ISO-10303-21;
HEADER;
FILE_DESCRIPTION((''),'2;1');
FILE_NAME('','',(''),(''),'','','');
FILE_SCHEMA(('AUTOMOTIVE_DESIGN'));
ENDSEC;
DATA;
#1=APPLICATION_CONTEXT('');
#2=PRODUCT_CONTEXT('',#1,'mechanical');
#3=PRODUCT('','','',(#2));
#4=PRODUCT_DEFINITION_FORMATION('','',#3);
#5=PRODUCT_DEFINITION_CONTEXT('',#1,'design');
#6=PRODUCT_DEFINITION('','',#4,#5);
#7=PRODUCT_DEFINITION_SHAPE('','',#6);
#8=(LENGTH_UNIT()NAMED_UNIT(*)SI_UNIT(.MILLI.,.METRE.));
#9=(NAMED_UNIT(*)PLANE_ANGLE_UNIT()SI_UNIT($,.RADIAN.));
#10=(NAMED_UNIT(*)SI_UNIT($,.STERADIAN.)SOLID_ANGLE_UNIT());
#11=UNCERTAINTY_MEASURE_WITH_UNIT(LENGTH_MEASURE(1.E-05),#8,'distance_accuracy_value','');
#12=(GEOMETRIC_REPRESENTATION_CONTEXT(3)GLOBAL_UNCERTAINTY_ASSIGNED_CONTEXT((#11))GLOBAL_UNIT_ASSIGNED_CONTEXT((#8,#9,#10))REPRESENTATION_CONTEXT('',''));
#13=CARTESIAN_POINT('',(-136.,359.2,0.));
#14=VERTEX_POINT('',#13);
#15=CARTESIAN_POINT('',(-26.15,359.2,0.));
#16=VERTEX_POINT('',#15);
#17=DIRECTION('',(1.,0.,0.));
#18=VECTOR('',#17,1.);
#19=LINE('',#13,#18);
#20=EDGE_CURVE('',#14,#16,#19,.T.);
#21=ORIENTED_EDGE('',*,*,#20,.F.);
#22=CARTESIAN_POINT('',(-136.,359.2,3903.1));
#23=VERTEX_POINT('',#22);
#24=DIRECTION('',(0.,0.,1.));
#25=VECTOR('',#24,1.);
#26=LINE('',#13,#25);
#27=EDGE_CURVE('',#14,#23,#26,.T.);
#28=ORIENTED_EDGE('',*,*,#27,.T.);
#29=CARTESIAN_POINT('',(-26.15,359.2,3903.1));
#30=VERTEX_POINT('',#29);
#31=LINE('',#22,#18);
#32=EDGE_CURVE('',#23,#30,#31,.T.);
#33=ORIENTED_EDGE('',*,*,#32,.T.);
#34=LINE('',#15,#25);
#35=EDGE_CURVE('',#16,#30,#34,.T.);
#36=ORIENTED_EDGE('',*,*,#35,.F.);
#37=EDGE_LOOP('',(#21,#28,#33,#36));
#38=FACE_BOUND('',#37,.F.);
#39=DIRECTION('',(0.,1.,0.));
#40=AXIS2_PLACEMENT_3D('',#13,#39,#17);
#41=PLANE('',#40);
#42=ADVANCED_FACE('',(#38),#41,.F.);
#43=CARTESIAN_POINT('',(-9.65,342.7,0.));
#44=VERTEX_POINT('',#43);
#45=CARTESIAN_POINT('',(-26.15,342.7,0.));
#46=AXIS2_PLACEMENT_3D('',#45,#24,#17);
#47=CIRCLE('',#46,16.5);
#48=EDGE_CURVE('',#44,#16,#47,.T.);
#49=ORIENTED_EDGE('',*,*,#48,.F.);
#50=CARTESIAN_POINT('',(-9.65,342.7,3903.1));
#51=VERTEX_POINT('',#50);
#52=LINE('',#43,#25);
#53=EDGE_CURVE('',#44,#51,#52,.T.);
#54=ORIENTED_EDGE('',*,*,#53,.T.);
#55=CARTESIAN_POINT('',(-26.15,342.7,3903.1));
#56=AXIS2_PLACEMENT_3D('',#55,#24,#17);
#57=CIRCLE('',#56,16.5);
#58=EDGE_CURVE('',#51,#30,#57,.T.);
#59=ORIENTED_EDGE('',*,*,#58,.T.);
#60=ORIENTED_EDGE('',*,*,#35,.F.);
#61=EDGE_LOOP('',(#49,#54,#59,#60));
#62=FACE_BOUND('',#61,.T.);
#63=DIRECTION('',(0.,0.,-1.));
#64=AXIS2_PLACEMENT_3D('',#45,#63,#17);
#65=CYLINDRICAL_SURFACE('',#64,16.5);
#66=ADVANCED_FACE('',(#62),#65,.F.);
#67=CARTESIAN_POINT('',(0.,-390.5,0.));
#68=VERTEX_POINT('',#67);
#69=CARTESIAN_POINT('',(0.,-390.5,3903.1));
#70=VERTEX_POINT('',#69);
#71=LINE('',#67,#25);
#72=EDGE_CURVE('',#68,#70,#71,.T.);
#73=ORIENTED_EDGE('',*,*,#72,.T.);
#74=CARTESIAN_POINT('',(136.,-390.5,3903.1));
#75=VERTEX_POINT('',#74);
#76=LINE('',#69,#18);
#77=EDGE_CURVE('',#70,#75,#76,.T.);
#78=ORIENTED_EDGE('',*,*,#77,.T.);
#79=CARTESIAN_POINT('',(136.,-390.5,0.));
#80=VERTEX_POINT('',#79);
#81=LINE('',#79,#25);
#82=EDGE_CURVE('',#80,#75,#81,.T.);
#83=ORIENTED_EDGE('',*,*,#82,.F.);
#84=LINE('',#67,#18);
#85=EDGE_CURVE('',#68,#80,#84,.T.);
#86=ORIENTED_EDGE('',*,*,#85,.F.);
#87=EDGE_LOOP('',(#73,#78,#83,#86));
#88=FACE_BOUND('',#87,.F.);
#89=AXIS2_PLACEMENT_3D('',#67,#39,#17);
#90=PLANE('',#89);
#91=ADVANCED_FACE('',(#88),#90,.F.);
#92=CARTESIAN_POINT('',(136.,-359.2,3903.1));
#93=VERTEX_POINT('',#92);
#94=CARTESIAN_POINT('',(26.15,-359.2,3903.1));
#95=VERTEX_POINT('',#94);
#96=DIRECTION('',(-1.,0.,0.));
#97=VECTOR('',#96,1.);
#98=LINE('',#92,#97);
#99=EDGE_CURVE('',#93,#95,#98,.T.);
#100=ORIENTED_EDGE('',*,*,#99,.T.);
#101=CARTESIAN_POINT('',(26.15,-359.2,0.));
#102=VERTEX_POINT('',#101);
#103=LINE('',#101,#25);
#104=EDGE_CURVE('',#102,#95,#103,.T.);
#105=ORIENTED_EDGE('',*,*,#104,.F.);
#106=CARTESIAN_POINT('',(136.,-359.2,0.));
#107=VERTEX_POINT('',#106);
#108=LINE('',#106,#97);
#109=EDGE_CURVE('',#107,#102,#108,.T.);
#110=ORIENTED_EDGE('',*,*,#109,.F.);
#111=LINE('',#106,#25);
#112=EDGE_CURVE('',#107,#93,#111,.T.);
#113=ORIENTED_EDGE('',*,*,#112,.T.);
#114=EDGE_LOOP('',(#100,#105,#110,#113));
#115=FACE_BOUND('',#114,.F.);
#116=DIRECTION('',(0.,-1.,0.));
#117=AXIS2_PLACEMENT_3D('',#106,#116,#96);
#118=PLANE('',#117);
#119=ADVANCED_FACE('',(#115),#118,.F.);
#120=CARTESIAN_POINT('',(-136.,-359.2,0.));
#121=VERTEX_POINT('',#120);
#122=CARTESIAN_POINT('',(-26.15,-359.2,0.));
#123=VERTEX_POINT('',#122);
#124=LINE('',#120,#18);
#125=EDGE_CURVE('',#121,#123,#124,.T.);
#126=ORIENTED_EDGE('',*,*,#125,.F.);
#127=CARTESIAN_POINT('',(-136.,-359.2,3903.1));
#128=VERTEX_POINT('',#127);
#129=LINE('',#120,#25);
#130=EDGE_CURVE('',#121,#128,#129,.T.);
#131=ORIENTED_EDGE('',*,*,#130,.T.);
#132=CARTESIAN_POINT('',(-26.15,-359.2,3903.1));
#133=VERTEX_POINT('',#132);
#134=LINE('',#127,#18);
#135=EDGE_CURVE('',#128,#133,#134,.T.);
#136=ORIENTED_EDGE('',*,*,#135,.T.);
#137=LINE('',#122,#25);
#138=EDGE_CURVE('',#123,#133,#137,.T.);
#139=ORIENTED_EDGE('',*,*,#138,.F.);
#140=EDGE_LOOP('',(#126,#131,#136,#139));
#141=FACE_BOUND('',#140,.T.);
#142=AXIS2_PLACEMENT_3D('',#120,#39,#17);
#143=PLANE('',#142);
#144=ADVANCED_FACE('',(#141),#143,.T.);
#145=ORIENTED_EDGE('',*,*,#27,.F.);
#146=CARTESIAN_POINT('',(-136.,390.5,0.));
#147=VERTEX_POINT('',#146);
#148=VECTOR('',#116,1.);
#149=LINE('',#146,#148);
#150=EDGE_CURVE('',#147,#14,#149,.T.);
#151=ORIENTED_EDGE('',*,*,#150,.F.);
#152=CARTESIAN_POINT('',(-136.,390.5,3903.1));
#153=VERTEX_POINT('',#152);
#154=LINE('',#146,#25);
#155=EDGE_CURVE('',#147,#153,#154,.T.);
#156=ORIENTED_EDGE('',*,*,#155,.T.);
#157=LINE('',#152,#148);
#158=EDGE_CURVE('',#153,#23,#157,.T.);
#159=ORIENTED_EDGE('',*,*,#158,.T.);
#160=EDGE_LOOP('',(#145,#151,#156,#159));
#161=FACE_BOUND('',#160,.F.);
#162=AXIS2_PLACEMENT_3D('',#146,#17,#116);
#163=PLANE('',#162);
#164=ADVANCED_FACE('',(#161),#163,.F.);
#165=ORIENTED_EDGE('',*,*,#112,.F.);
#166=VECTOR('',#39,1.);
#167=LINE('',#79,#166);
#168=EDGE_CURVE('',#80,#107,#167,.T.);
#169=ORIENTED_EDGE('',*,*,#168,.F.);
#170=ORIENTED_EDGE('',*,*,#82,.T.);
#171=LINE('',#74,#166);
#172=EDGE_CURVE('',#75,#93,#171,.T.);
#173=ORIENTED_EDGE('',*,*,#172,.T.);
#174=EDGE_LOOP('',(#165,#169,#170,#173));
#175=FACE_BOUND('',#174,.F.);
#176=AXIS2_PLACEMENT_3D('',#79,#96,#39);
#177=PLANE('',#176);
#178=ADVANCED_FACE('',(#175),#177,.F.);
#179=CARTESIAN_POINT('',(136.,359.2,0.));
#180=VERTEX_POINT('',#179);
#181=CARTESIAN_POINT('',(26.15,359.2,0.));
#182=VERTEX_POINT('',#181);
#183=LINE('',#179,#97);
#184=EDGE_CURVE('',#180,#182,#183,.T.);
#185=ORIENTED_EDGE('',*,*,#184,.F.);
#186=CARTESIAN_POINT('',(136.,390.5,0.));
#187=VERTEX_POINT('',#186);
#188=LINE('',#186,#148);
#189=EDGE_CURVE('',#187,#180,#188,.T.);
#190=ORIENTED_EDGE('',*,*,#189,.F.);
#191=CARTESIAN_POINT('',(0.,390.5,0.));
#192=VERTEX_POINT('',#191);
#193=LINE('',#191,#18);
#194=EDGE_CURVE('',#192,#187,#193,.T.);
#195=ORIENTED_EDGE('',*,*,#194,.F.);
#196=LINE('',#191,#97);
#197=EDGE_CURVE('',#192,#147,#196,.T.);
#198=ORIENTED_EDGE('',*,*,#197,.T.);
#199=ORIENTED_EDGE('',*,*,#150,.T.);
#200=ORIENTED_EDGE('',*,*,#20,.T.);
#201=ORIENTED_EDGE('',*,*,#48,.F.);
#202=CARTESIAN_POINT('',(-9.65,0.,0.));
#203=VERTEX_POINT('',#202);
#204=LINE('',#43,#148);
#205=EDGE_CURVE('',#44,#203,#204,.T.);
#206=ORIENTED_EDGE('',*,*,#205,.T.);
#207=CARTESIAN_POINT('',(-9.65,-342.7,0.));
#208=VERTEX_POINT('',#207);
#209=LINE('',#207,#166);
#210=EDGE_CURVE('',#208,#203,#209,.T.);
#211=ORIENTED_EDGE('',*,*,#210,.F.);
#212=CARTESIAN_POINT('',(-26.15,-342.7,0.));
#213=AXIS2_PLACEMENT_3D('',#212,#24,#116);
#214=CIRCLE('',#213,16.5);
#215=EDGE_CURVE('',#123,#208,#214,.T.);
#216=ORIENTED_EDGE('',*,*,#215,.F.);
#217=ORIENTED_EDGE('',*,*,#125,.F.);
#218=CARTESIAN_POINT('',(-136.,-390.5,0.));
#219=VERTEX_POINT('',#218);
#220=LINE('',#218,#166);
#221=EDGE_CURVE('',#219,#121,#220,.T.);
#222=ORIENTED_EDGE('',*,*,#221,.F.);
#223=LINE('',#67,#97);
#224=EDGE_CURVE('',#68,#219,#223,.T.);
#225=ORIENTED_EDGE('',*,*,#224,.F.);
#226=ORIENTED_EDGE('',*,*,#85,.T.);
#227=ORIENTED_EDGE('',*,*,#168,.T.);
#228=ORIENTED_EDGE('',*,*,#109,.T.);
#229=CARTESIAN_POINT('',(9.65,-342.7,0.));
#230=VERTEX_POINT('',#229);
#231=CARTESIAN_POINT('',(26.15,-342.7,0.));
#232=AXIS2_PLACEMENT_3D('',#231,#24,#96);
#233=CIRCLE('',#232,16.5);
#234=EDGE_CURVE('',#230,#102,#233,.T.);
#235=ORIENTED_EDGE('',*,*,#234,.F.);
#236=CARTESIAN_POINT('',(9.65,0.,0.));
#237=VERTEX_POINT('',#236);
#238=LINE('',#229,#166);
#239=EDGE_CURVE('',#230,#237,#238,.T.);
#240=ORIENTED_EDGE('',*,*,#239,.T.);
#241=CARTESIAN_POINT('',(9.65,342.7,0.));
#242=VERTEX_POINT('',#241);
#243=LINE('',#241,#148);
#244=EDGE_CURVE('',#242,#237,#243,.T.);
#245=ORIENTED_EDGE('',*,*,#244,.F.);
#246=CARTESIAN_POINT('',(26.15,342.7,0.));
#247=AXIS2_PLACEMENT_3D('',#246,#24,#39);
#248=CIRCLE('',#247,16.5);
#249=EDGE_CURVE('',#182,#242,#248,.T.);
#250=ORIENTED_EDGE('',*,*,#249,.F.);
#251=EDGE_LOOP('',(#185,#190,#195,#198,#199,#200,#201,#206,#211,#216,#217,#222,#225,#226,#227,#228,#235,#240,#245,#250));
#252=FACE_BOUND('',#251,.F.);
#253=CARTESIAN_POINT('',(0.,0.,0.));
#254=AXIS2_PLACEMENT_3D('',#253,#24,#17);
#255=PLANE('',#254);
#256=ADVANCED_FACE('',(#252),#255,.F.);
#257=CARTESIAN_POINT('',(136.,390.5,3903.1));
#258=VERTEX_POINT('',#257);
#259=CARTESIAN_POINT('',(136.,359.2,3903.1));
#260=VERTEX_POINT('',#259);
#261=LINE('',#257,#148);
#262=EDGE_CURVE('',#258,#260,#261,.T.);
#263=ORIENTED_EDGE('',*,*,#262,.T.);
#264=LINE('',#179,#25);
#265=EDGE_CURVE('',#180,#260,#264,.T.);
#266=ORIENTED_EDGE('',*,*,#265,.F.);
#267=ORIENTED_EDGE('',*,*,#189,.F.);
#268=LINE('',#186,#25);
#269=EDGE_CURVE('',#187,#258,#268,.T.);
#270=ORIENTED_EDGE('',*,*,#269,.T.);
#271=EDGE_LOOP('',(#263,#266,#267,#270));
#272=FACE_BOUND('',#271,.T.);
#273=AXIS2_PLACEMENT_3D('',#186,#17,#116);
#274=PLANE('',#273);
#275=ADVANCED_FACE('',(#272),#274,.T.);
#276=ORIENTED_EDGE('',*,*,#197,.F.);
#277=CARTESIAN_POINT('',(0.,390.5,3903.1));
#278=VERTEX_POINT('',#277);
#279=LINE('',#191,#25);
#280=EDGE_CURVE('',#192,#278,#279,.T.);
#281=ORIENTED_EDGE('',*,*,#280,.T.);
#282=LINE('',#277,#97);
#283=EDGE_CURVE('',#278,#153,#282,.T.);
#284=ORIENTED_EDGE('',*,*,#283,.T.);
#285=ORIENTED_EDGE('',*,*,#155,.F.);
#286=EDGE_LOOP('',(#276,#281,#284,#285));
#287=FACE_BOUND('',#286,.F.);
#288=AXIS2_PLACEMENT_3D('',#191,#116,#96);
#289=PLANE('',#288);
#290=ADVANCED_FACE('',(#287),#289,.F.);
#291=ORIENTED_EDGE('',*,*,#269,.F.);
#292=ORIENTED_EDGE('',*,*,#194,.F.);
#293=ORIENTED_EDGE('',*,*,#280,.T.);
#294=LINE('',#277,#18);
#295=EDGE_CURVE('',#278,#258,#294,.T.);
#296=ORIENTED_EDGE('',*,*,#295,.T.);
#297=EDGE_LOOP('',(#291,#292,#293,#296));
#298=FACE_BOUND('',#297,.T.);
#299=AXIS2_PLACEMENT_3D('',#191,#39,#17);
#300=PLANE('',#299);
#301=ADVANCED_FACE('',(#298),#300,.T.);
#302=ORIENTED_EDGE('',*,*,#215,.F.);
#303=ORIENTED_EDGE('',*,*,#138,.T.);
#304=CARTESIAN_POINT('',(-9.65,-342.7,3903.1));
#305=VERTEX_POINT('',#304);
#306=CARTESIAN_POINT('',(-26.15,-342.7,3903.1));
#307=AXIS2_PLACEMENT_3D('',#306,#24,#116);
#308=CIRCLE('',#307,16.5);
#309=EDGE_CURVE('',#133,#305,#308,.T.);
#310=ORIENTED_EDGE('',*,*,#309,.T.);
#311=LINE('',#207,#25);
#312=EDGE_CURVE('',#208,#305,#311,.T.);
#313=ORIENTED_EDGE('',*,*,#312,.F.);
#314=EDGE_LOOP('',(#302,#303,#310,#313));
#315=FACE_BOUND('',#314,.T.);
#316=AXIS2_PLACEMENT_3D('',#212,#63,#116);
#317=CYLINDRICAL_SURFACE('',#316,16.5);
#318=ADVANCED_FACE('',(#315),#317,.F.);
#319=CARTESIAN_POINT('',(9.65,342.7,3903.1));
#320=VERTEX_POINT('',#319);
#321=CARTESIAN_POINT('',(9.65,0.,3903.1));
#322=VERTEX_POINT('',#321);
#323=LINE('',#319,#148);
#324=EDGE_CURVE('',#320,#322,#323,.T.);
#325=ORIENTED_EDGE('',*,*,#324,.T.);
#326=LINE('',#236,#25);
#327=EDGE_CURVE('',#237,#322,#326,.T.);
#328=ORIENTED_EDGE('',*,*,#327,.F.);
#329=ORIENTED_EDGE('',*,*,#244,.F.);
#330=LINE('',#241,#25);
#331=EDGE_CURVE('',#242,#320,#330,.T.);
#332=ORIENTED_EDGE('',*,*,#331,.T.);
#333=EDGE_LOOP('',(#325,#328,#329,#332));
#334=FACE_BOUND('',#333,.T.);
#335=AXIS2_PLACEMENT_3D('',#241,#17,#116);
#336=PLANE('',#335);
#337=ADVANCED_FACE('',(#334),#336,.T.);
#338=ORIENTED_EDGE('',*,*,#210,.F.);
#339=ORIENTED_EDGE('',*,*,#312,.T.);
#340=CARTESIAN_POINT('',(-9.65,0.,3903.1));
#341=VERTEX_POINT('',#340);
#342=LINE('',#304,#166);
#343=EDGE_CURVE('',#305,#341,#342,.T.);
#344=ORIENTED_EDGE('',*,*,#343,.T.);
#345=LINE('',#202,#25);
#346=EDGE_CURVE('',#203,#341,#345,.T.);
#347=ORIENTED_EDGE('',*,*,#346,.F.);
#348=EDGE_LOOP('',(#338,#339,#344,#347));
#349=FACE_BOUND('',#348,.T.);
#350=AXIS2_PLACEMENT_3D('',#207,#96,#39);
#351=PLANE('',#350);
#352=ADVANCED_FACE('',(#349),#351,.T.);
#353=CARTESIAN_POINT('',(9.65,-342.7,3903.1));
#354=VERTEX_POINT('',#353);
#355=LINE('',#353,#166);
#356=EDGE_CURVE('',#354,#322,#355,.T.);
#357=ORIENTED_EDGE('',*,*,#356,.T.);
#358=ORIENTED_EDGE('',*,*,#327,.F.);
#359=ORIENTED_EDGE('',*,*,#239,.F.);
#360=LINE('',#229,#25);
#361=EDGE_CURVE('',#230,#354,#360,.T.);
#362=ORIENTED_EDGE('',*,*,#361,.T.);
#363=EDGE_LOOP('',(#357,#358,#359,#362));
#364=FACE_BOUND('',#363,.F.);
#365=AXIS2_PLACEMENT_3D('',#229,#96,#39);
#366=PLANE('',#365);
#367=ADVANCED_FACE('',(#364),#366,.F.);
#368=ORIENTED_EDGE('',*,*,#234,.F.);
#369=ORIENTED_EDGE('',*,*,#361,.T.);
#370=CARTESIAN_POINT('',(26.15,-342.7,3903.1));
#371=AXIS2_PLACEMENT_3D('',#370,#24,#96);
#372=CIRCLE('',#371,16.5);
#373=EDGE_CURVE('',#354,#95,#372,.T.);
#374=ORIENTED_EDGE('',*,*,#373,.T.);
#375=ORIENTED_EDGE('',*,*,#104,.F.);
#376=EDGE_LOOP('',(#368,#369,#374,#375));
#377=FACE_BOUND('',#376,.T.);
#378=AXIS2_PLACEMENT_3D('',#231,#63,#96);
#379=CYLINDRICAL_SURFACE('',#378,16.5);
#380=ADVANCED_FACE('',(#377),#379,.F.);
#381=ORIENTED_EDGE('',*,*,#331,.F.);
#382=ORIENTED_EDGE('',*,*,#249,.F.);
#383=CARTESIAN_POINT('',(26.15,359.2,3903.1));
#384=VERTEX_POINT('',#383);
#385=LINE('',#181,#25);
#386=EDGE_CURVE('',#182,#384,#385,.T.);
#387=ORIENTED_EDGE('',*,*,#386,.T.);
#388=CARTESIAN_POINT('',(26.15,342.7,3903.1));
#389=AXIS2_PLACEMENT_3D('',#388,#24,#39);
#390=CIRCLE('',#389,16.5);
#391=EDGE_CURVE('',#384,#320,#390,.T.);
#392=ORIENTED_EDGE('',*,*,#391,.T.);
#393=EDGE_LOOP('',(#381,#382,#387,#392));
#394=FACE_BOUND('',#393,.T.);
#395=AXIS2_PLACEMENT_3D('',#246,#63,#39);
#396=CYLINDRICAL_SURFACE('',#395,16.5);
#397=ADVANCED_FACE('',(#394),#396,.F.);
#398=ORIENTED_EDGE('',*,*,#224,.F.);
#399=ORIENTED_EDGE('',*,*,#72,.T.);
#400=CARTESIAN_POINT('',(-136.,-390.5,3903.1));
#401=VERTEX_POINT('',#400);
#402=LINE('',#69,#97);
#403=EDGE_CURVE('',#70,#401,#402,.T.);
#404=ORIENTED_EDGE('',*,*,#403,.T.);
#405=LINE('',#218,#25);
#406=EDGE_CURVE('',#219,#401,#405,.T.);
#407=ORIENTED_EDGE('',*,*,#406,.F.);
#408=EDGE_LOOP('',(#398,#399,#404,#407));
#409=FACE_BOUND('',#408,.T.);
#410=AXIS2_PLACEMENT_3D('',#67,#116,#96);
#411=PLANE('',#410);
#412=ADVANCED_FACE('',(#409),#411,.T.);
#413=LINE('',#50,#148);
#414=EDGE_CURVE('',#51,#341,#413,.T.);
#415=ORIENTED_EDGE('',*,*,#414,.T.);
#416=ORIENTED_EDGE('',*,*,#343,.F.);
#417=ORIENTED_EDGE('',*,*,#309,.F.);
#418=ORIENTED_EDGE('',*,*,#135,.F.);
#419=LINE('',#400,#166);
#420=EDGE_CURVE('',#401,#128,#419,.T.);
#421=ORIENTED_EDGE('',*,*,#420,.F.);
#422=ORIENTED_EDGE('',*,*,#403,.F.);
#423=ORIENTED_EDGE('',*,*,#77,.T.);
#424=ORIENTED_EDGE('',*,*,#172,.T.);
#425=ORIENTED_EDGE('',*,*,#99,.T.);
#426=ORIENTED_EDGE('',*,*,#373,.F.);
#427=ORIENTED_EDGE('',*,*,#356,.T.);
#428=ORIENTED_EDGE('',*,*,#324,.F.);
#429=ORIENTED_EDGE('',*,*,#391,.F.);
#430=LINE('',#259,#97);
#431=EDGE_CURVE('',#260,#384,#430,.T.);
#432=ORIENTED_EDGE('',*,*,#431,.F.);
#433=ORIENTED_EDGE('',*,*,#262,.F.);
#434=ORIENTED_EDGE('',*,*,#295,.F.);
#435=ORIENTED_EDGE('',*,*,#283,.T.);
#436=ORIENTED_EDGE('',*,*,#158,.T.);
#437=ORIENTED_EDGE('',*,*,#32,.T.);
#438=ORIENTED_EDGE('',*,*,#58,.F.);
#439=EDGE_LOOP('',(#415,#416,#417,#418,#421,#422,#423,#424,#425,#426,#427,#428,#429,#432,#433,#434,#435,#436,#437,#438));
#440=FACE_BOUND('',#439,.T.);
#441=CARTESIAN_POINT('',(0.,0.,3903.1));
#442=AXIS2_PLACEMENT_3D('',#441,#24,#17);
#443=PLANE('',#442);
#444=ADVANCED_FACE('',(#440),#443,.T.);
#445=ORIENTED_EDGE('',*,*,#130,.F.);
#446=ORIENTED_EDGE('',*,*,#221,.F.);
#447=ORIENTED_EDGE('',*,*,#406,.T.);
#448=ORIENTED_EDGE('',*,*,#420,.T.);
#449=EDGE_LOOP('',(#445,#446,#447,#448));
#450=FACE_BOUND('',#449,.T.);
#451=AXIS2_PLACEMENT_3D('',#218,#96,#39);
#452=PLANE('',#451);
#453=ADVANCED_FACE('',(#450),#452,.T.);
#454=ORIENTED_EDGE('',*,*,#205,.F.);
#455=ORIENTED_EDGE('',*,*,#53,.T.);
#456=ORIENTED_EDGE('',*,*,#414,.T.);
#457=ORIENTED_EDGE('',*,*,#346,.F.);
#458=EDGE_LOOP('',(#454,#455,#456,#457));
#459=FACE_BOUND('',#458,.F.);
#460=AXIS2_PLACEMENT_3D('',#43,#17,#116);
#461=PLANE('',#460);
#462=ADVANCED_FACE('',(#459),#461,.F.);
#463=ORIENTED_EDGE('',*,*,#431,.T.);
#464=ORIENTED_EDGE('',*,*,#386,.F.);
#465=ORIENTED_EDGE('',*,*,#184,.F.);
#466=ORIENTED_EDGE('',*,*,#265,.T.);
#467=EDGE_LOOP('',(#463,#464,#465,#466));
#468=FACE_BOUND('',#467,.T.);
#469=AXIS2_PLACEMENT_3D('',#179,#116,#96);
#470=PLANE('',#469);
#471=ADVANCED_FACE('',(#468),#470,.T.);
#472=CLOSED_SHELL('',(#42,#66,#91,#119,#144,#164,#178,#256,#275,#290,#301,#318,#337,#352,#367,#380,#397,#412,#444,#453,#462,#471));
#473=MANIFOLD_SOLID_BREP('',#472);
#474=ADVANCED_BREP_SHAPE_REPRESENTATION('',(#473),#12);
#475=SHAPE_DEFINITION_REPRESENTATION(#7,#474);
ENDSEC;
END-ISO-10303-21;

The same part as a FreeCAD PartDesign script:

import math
import FreeCAD as App
import Part
import Sketcher
Q = App.Units.Quantity

doc = App.newDocument("Part")
body = doc.addObject("PartDesign::Body", "Body")

sketch1 = body.newObject("Sketcher::SketchObject", "Sketch")
sketch1.AttachmentSupport = (doc.getObject("XY_Plane"), [""])
sketch1.MapMode = "FlatFace"
sketch1.addGeometry([
    Part.LineSegment(App.Vector(-136, -359, 0), App.Vector(-136, -390, 0)),
    Part.LineSegment(App.Vector(-136, -390, 0), App.Vector(136, -390, 0)),
    Part.LineSegment(App.Vector(136, -390, 0), App.Vector(136, -359, 0)),
    Part.LineSegment(App.Vector(136, -359, 0), App.Vector(26, -359, 0)),
    Part.ArcOfCircle(Part.Circle(App.Vector(26, -343, 0), App.Vector(0, 0, 1), 16), math.radians(180), math.radians(270)),
    Part.LineSegment(App.Vector(10, -343, 0), App.Vector(10, 343, 0)),
    Part.ArcOfCircle(Part.Circle(App.Vector(26, 343, 0), App.Vector(0, 0, 1), 16), math.radians(90), math.radians(180)),
    Part.LineSegment(App.Vector(26, 359, 0), App.Vector(136, 359, 0)),
    Part.LineSegment(App.Vector(136, 359, 0), App.Vector(136, 390, 0)),
    Part.LineSegment(App.Vector(136, 390, 0), App.Vector(-136, 390, 0)),
    Part.LineSegment(App.Vector(-136, 390, 0), App.Vector(-136, 359, 0)),
    Part.LineSegment(App.Vector(-136, 359, 0), App.Vector(-26, 359, 0)),
    Part.ArcOfCircle(Part.Circle(App.Vector(-26, 343, 0), App.Vector(0, 0, 1), 16), math.radians(0), math.radians(90)),
    Part.LineSegment(App.Vector(-10, 343, 0), App.Vector(-10, -343, 0)),
    Part.ArcOfCircle(Part.Circle(App.Vector(-26, -343, 0), App.Vector(0, 0, 1), 16), math.radians(-90), math.radians(0)),
    Part.LineSegment(App.Vector(-26, -359, 0), App.Vector(-136, -359, 0)),
], False)
sketch1.addConstraint([
    Sketcher.Constraint("Coincident", 0, 2, 1, 1),
    Sketcher.Constraint("Coincident", 1, 2, 2, 1),
    Sketcher.Constraint("Coincident", 2, 2, 3, 1),
    Sketcher.Constraint("Tangent", 3, 2, 4, 2),
    Sketcher.Constraint("Tangent", 4, 1, 5, 1),
    Sketcher.Constraint("Tangent", 5, 2, 6, 2),
    Sketcher.Constraint("Tangent", 6, 1, 7, 1),
    Sketcher.Constraint("Coincident", 7, 2, 8, 1),
    Sketcher.Constraint("Coincident", 8, 2, 9, 1),
    Sketcher.Constraint("Coincident", 9, 2, 10, 1),
    Sketcher.Constraint("Coincident", 10, 2, 11, 1),
    Sketcher.Constraint("Tangent", 11, 2, 12, 2),
    Sketcher.Constraint("Tangent", 12, 1, 13, 1),
    Sketcher.Constraint("Tangent", 13, 2, 14, 2),
    Sketcher.Constraint("Tangent", 14, 1, 15, 1),
    Sketcher.Constraint("Coincident", 15, 2, 0, 1),
    Sketcher.Constraint("Vertical", 0),
    Sketcher.Constraint("Horizontal", 1),
    Sketcher.Constraint("Vertical", 2),
    Sketcher.Constraint("Horizontal", 3),
    Sketcher.Constraint("Vertical", 5),
    Sketcher.Constraint("Horizontal", 7),
    Sketcher.Constraint("Vertical", 8),
    Sketcher.Constraint("Horizontal", 9),
    Sketcher.Constraint("Vertical", 10),
    Sketcher.Constraint("Horizontal", 11),
    Sketcher.Constraint("Vertical", 13),
    Sketcher.Constraint("Horizontal", 15),
    Sketcher.Constraint("Equal", 4, 6),
    Sketcher.Constraint("Equal", 6, 12),
    Sketcher.Constraint("Equal", 12, 14),
    Sketcher.Constraint("Symmetric", 4, 3, 12, 3, -1, 1),
    Sketcher.Constraint("Symmetric", 0, 2, 8, 2, -1, 1),
    Sketcher.Constraint("Symmetric", 7, 2, 10, 2, -2),
    Sketcher.Constraint("Symmetric", 2, 2, 15, 2, -2),
    Sketcher.Constraint("Radius", 4, Q("16.5 mm")),
    Sketcher.Constraint("DistanceY", 0, 2, 0, 1, Q("31.3 mm")),
    Sketcher.Constraint("DistanceX", 0, 2, -1, 1, Q("136 mm")),
    Sketcher.Constraint("DistanceY", 0, 2, -1, 1, Q("390.5 mm")),
    Sketcher.Constraint("DistanceX", -1, 1, 4, 1, Q("9.65 mm")),
])
pad1 = body.newObject("PartDesign::Pad", "Pad")
pad1.Profile = sketch1
pad1.Length = 3903.1

doc.recompute()
